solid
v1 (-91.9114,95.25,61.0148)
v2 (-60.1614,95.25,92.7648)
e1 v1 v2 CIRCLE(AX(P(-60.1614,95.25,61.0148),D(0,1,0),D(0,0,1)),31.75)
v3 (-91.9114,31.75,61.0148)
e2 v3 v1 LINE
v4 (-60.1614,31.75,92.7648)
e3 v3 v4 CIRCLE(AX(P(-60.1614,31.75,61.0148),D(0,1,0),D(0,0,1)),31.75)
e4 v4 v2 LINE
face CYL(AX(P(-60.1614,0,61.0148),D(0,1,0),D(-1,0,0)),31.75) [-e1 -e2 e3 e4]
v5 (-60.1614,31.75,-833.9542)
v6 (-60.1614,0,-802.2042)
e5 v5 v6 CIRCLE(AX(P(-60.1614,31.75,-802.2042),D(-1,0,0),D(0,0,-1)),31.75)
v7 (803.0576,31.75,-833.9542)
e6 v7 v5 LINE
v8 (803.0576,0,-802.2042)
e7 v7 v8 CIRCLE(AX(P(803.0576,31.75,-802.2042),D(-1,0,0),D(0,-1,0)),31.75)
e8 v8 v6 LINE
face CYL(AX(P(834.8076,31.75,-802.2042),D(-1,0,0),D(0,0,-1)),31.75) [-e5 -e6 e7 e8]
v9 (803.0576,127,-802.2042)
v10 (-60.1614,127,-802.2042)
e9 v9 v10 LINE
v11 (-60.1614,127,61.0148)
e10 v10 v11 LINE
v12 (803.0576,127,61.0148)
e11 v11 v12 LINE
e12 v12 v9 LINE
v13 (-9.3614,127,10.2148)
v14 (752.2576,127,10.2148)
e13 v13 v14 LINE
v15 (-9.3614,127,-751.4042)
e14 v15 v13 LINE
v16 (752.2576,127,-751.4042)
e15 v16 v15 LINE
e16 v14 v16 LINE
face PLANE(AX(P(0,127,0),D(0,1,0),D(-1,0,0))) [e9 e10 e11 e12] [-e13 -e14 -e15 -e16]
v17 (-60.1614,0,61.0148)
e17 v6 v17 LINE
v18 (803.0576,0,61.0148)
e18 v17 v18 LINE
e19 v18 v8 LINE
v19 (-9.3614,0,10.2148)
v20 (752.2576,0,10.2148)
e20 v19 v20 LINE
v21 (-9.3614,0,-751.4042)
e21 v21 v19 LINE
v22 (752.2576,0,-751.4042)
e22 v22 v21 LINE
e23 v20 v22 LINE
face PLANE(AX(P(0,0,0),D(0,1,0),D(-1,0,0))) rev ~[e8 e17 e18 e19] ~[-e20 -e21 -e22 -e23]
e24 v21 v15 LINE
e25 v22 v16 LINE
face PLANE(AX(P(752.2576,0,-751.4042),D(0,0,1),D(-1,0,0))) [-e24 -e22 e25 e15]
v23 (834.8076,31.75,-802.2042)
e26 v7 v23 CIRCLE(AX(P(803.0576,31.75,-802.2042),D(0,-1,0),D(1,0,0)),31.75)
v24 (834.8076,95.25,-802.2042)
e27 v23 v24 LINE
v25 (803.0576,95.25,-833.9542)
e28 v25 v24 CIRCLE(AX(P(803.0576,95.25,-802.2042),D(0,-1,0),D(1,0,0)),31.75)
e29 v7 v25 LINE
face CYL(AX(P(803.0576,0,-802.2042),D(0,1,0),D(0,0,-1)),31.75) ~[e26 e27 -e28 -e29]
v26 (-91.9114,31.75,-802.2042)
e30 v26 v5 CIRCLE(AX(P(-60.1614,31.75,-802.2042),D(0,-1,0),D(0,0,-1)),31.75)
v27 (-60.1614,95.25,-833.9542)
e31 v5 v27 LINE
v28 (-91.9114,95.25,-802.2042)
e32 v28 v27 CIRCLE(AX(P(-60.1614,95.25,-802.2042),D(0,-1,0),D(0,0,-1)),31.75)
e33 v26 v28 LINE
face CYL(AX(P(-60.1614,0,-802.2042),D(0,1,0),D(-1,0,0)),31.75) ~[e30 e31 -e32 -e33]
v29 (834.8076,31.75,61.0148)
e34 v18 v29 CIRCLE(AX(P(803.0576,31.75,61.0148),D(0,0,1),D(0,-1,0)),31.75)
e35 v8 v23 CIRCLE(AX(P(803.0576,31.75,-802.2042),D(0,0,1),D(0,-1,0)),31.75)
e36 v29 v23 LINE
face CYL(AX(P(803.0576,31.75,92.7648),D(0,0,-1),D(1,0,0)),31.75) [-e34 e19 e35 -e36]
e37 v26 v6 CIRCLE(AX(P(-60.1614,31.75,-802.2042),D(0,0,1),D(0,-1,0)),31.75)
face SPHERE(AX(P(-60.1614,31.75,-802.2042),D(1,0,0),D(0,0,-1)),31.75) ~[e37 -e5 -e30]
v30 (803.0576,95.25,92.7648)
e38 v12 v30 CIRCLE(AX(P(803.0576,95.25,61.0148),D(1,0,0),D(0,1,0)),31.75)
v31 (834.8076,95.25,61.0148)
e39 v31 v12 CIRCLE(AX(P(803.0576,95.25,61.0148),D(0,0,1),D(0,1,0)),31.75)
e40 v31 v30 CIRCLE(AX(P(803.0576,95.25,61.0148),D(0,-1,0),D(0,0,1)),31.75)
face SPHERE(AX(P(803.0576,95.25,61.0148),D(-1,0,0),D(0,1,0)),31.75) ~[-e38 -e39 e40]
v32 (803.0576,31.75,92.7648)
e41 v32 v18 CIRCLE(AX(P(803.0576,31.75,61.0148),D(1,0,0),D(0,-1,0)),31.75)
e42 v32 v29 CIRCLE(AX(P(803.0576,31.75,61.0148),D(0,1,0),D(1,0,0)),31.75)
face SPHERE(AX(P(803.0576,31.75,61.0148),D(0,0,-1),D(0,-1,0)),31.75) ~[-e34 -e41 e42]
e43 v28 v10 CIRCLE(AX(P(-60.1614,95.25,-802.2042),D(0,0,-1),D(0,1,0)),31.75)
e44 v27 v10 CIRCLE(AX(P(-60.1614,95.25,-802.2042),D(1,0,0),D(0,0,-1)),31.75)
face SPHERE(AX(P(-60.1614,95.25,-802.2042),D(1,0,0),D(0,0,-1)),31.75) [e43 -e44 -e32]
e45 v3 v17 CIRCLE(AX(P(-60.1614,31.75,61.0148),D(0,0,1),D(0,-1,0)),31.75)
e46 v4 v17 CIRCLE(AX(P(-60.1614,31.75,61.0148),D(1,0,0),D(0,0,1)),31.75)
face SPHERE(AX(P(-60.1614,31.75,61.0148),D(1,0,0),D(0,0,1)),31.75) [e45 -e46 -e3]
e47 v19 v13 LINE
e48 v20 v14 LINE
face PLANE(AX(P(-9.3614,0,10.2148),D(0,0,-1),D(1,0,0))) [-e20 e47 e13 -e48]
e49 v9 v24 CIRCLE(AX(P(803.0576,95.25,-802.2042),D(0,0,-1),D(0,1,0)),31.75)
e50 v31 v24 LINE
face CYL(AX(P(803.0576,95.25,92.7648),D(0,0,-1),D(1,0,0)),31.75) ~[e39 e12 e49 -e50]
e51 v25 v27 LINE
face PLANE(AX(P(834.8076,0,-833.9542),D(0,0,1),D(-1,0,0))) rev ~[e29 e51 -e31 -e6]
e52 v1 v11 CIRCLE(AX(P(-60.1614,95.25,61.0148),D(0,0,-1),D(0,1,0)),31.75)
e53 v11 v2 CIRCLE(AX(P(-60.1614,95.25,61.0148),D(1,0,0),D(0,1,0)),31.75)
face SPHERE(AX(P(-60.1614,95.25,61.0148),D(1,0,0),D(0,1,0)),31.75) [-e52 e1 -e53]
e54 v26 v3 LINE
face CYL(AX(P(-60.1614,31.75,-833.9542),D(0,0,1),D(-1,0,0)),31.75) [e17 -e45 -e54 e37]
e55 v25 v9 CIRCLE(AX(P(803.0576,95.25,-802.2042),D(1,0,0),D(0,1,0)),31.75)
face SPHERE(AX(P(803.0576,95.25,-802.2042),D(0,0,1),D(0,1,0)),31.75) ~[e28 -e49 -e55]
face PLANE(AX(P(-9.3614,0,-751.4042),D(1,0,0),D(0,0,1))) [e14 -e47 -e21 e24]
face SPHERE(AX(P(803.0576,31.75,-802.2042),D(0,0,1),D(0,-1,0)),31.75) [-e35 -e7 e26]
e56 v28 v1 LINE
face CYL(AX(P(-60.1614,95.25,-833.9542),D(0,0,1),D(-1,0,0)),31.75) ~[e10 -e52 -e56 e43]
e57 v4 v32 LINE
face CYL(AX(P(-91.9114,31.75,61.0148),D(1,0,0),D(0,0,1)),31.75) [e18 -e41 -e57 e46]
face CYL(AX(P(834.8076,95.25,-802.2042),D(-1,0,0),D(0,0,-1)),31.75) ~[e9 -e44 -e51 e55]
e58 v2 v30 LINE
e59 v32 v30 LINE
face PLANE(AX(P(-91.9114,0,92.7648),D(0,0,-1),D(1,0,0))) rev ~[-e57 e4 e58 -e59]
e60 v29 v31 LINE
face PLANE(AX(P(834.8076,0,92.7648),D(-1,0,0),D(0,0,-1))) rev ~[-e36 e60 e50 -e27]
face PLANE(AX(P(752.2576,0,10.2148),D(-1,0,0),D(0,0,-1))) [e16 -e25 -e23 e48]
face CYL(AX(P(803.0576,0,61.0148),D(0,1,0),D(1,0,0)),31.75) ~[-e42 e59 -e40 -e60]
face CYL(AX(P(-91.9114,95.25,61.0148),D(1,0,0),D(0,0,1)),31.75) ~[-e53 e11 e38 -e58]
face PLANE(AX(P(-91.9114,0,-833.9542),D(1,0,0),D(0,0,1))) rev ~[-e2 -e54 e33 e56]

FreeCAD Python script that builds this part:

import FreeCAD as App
import Part
import Sketcher

V = App.Vector
Q = App.Units.Quantity


def edges_at(feature, points):
    """Names of the edges that pass closest to the given points."""
    edges = feature.Shape.Edges
    near = lambda p: min(range(len(edges)), key=lambda i: edges[i].distToShape(Part.Vertex(*p))[0])
    return sorted({f"Edge{near(p) + 1}" for p in points})

doc = App.newDocument("Part")
body = doc.addObject("PartDesign::Body", "Body")

# Sketch on XZ plane
sketch1 = body.newObject("Sketcher::SketchObject", "Sketch")
sketch1.AttachmentSupport = (doc.getObject("XZ_Plane"), [""])
sketch1.MapMode = "FlatFace"
sketch1.addGeometry([
    Part.LineSegment(V(-91.9114, -833.9542, 0), V(-91.9114, 92.7648, 0)),  # 0
    Part.LineSegment(V(-91.9114, 92.7648, 0), V(834.8076, 92.7648, 0)),  # 1
    Part.LineSegment(V(834.8076, 92.7648, 0), V(834.8076, -833.9542, 0)),  # 2
    Part.LineSegment(V(834.8076, -833.9542, 0), V(-91.9114, -833.9542, 0)),  # 3
    Part.LineSegment(V(752.2576, 10.2148, 0), V(-9.3614, 10.2148, 0)),  # 4
    Part.LineSegment(V(-9.3614, 10.2148, 0), V(-9.3614, -751.4042, 0)),  # 5
    Part.LineSegment(V(-9.3614, -751.4042, 0), V(752.2576, -751.4042, 0)),  # 6
    Part.LineSegment(V(752.2576, -751.4042, 0), V(752.2576, 10.2148, 0)),  # 7
], False)
sketch1.addConstraint([
    Sketcher.Constraint("Coincident", 0, 2, 1, 1),
    Sketcher.Constraint("Coincident", 1, 2, 2, 1),
    Sketcher.Constraint("Coincident", 2, 2, 3, 1),
    Sketcher.Constraint("Coincident", 3, 2, 0, 1),
    Sketcher.Constraint("Coincident", 4, 2, 5, 1),
    Sketcher.Constraint("Coincident", 5, 2, 6, 1),
    Sketcher.Constraint("Coincident", 6, 2, 7, 1),
    Sketcher.Constraint("Coincident", 7, 2, 4, 1),
    Sketcher.Constraint("Vertical", 0),
    Sketcher.Constraint("Horizontal", 1),
    Sketcher.Constraint("Vertical", 2),
    Sketcher.Constraint("Horizontal", 3),
    Sketcher.Constraint("Horizontal", 4),
    Sketcher.Constraint("Vertical", 5),
    Sketcher.Constraint("Horizontal", 6),
    Sketcher.Constraint("Vertical", 7),
    Sketcher.Constraint("Equal", 3, 0),
    Sketcher.Constraint("Equal", 6, 5),
    Sketcher.Constraint("DistanceX", 4, 2, 4, 1, Q("29.985 in")),
    Sketcher.Constraint("DistanceX", 0, 2, 4, 2, Q("3.25 in")),
    Sketcher.Constraint("DistanceY", 4, 2, 0, 2, Q("3.25 in")),
    Sketcher.Constraint("DistanceY", 3, 2, 5, 2, Q("3.25 in")),
    Sketcher.Constraint("DistanceX", 0, 2, -1, 1, 91.9114),
    Sketcher.Constraint("DistanceY", -1, 1, 0, 2, 92.7648),
])
pad1 = body.newObject("PartDesign::Pad", "Pad")
pad1.Profile = sketch1
pad1.Length = Q("5 in")
pad1.Reversed = True
doc.recompute()

fillet = body.newObject("PartDesign::Fillet", "Fillet")
fillet.Base = (pad1, edges_at(pad1, [
    (371.448, 127, 92.765),
    (834.808, 127, -370.595),
    (834.808, 0, -370.595),
    (371.448, 0, 92.765),
    (834.808, 63.5, 92.765),
    (371.448, 127, -833.954),
    (371.448, 0, -833.954),
    (834.808, 63.5, -833.954),
    (-91.911, 63.5, -833.954),
    (-91.911, 127, -370.595),
    (-91.911, 63.5, 92.765),
    (-91.911, 0, -370.595),
]))
fillet.Radius = Q("1.25 in")

doc.recompute()
